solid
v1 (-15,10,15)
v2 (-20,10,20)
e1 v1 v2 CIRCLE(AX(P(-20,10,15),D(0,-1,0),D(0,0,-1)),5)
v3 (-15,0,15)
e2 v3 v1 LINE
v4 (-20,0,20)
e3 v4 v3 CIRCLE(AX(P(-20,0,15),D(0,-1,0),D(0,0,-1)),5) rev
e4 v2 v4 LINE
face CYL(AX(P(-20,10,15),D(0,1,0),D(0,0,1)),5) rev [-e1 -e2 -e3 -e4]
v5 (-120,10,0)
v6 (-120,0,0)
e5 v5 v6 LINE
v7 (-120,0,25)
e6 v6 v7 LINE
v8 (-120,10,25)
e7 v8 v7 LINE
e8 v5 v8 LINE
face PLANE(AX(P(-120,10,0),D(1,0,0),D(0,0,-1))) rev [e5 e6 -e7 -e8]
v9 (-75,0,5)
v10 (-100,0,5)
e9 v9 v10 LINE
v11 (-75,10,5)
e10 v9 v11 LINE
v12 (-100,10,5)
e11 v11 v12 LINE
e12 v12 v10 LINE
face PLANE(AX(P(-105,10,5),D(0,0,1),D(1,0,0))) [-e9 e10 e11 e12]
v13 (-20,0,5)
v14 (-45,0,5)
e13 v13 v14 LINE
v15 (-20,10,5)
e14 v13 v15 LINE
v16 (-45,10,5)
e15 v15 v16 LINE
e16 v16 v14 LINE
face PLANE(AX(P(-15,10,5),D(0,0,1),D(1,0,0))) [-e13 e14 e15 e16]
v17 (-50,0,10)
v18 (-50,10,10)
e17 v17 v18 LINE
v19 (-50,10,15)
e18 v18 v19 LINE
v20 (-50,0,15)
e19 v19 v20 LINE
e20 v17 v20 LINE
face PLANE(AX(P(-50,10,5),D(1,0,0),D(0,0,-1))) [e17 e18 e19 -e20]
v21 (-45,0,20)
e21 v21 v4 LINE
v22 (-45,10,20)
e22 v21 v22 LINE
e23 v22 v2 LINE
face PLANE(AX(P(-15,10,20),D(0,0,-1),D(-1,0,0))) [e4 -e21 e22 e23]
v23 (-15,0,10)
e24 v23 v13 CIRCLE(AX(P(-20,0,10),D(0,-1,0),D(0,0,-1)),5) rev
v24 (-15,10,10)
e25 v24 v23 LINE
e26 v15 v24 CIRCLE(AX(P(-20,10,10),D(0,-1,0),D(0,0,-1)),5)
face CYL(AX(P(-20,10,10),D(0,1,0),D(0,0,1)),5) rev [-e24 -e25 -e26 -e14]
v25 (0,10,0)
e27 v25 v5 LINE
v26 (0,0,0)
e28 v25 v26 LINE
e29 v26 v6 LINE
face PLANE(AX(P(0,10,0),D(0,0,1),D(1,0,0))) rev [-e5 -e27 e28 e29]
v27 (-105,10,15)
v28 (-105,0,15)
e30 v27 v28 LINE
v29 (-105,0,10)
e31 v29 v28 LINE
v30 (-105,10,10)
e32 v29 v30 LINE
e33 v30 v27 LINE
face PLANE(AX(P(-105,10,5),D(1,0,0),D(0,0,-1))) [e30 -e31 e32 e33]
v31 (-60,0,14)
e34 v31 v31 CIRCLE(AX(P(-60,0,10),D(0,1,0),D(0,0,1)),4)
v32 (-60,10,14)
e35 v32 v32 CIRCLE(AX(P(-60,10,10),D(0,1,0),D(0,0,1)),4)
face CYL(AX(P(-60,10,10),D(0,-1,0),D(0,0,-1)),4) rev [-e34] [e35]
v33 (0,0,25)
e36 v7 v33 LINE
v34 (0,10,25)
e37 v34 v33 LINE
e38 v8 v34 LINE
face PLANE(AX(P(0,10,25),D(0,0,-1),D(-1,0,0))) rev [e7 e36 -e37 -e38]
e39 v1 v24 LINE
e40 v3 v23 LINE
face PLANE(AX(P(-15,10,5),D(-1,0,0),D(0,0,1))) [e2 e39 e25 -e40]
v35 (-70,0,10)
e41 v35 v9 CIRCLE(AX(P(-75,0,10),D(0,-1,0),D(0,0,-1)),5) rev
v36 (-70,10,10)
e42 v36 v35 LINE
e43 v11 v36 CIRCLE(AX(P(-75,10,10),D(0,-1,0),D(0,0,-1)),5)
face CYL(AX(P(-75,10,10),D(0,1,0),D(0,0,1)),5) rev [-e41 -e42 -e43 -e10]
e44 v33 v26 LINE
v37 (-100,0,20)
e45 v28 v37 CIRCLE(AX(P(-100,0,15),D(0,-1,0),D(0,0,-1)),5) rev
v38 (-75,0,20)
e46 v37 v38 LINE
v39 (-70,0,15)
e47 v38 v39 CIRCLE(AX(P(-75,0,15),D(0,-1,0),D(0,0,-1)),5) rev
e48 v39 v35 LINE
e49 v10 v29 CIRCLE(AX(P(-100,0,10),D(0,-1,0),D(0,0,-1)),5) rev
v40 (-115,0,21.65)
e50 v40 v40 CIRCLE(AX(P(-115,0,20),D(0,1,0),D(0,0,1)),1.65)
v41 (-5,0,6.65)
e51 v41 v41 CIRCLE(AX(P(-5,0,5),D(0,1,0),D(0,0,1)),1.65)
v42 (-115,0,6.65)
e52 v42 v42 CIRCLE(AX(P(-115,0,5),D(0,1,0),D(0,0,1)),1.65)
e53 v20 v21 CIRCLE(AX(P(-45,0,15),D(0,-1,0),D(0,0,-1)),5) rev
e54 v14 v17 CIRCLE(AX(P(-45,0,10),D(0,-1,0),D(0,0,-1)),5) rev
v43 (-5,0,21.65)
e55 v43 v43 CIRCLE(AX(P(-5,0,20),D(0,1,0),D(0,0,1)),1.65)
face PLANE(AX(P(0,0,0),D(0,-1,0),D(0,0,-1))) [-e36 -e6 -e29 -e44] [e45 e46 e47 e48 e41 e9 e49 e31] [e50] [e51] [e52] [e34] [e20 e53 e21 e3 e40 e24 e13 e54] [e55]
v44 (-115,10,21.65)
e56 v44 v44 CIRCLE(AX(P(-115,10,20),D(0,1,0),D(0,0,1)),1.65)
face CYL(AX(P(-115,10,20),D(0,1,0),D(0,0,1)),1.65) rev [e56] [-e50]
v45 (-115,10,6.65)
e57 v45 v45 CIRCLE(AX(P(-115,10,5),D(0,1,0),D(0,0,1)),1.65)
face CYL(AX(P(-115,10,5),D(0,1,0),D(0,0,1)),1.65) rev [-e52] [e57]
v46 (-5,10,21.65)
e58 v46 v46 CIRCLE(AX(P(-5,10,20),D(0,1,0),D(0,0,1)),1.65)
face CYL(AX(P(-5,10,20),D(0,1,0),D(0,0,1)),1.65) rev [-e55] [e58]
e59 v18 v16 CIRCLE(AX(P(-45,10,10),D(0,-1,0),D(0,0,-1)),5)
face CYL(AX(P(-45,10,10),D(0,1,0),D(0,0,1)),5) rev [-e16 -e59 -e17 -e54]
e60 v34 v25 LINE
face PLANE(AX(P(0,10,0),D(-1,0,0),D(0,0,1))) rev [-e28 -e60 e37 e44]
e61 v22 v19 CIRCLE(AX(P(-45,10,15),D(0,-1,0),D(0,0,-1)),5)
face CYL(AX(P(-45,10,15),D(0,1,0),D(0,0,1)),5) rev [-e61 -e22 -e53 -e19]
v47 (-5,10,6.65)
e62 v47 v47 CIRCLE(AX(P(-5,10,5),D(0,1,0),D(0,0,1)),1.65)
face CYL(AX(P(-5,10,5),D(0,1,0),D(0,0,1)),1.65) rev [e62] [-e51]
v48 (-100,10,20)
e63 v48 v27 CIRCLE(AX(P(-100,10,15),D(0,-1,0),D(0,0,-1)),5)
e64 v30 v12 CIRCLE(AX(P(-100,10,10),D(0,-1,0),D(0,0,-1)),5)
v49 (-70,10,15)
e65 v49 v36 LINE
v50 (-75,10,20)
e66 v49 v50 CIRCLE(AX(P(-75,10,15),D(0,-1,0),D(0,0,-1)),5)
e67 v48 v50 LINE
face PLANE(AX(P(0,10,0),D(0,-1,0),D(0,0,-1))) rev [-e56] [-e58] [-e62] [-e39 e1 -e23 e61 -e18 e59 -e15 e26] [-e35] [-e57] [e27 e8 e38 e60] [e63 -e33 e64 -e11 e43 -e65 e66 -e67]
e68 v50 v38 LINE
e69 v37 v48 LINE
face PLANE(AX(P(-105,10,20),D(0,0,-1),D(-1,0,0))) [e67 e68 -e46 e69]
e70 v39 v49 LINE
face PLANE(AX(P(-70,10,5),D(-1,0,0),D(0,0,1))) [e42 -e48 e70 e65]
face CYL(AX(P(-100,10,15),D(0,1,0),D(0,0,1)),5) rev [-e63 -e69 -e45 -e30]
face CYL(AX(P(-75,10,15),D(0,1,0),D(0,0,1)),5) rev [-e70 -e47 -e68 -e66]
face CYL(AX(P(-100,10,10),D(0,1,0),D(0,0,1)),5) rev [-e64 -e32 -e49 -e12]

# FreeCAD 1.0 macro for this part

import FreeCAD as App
import Part
import Sketcher
from FreeCAD import Vector


def edges_at(feature, points):
    """Names of the edges that pass closest to the given points."""
    edges = feature.Shape.Edges
    near = lambda p: min(range(len(edges)), key=lambda i: edges[i].distToShape(Part.Vertex(*p))[0])
    return sorted({f"Edge{near(p) + 1}" for p in points})


def add_polygon(sketch, points):
    """Adds a closed chain of lines whose ends are joined by coincident constraints."""
    first, n = sketch.GeometryCount, len(points)
    for a, b in zip(points, points[1:] + points[:1]):
        sketch.addGeometry(Part.LineSegment(App.Vector(*a, 0), App.Vector(*b, 0)), False)
    for i in range(n):
        sketch.addConstraint(Sketcher.Constraint("Coincident", first + i, 2, first + (i + 1) % n, 1))

doc = App.newDocument("Part")
body = doc.addObject("PartDesign::Body", "Body")

sketch1 = body.newObject("Sketcher::SketchObject", "Sketch")
sketch1.AttachmentSupport = (doc.getObject("XZ_Plane"), [""])
sketch1.MapMode = "FlatFace"
add_polygon(sketch1, [(-120, 0), (-120, 25), (0, 25), (0, 0)])
add_polygon(sketch1, [(-70, 20), (-105, 20), (-105, 5), (-70, 5)])
sketch1.addGeometry(Part.Circle(Vector(-60, 10, 0), Vector(0, 0, 1), 4), False)
add_polygon(sketch1, [(-15, 20), (-50, 20), (-50, 5), (-15, 5)])
sketch1.addConstraint(Sketcher.Constraint("Vertical", 0))
sketch1.addConstraint(Sketcher.Constraint("Horizontal", 1))
sketch1.addConstraint(Sketcher.Constraint("Vertical", 2))
sketch1.addConstraint(Sketcher.Constraint("Horizontal", 3))
sketch1.addConstraint(Sketcher.Constraint("Horizontal", 4))
sketch1.addConstraint(Sketcher.Constraint("Vertical", 5))
sketch1.addConstraint(Sketcher.Constraint("Horizontal", 6))
sketch1.addConstraint(Sketcher.Constraint("Vertical", 7))
sketch1.addConstraint(Sketcher.Constraint("Horizontal", 9))
sketch1.addConstraint(Sketcher.Constraint("Vertical", 10))
sketch1.addConstraint(Sketcher.Constraint("Horizontal", 11))
sketch1.addConstraint(Sketcher.Constraint("Vertical", 12))
sketch1.addConstraint(Sketcher.Constraint("Coincident", 2, 2, -1, 1))
sketch1.addConstraint(Sketcher.Constraint("Horizontal", 7, 2, 9, 2))
sketch1.addConstraint(Sketcher.Constraint("Horizontal", 6, 2, 10, 2))
sketch1.addConstraint(Sketcher.Constraint("Equal", 6, 9))
sketch1.addConstraint(Sketcher.Constraint("Diameter", 8, 8.0))
sketch1.addConstraint(Sketcher.Constraint("DistanceX", 1, 1, 1, 2, 120.0))
sketch1.addConstraint(Sketcher.Constraint("DistanceX", 4, 2, 4, 1, 35.0))
sketch1.addConstraint(Sketcher.Constraint("DistanceY", 0, 1, 0, 2, 25.0))
sketch1.addConstraint(Sketcher.Constraint("DistanceY", 5, 2, 5, 1, 15.0))
sketch1.addConstraint(Sketcher.Constraint("DistanceX", 8, 3, -1, 1, 60.0))
sketch1.addConstraint(Sketcher.Constraint("DistanceY", -1, 1, 8, 3, 10.0))
sketch1.addConstraint(Sketcher.Constraint("DistanceX", 4, 2, -1, 1, 105.0))
sketch1.addConstraint(Sketcher.Constraint("DistanceY", -1, 1, 4, 2, 20.0))
sketch1.addConstraint(Sketcher.Constraint("DistanceX", 9, 2, -1, 1, 50.0))
pad1 = body.newObject("PartDesign::Pad", "Pad")
pad1.Profile = sketch1
pad1.Length = 10
pad1.Reversed = True
doc.recompute()

fillet = body.newObject("PartDesign::Fillet", "Fillet")
fillet.Base = (pad1, edges_at(pad1, [
    (-15, 5, 20),
    (-15, 5, 5),
    (-50, 5, 5),
    (-50, 5, 20),
    (-105, 5, 5),
    (-105, 5, 20),
    (-70, 5, 20),
    (-70, 5, 5),
]))
fillet.Radius = 5

sketch2 = body.newObject("Sketcher::SketchObject", "Sketch001")
sketch2.AttachmentSupport = (doc.getObject("XZ_Plane"), [""])
sketch2.MapMode = "FlatFace"
sketch2.AttachmentOffset = App.Placement(Vector(0, 0, -10), App.Rotation())
sketch2.addGeometry(Part.Circle(Vector(-115, 5, 0), Vector(0, 0, 1), 1.6), False)
sketch2.addGeometry(Part.Circle(Vector(-115, 20, 0), Vector(0, 0, 1), 1.6), False)
sketch2.addGeometry(Part.Circle(Vector(-5, 5, 0), Vector(0, 0, 1), 1.6), False)
sketch2.addGeometry(Part.Circle(Vector(-5, 20, 0), Vector(0, 0, 1), 1.6), False)
sketch2.addConstraint(Sketcher.Constraint("Equal", 0, 1))
sketch2.addConstraint(Sketcher.Constraint("Equal", 1, 2))
sketch2.addConstraint(Sketcher.Constraint("Equal", 2, 3))
sketch2.addConstraint(Sketcher.Constraint("Horizontal", 0, 3, 2, 3))
sketch2.addConstraint(Sketcher.Constraint("Horizontal", 1, 3, 3, 3))
sketch2.addConstraint(Sketcher.Constraint("Vertical", 0, 3, 1, 3))
sketch2.addConstraint(Sketcher.Constraint("Vertical", 2, 3, 3, 3))
sketch2.addConstraint(Sketcher.Constraint("Diameter", 0, 3.3))
sketch2.addConstraint(Sketcher.Constraint("DistanceX", 0, 3, -1, 1, 115.0))
sketch2.addConstraint(Sketcher.Constraint("DistanceY", -1, 1, 0, 3, 5.0))
sketch2.addConstraint(Sketcher.Constraint("DistanceY", -1, 1, 1, 3, 20.0))
sketch2.addConstraint(Sketcher.Constraint("DistanceX", 2, 3, -1, 1, 5.0))
doc.recompute()
hole = body.newObject("PartDesign::Hole", "Hole")
hole.Profile = sketch2
hole.ThreadType = "None"
hole.Diameter = 3.3
hole.DepthType = "ThroughAll"
hole.Reversed = True

doc.recompute()
